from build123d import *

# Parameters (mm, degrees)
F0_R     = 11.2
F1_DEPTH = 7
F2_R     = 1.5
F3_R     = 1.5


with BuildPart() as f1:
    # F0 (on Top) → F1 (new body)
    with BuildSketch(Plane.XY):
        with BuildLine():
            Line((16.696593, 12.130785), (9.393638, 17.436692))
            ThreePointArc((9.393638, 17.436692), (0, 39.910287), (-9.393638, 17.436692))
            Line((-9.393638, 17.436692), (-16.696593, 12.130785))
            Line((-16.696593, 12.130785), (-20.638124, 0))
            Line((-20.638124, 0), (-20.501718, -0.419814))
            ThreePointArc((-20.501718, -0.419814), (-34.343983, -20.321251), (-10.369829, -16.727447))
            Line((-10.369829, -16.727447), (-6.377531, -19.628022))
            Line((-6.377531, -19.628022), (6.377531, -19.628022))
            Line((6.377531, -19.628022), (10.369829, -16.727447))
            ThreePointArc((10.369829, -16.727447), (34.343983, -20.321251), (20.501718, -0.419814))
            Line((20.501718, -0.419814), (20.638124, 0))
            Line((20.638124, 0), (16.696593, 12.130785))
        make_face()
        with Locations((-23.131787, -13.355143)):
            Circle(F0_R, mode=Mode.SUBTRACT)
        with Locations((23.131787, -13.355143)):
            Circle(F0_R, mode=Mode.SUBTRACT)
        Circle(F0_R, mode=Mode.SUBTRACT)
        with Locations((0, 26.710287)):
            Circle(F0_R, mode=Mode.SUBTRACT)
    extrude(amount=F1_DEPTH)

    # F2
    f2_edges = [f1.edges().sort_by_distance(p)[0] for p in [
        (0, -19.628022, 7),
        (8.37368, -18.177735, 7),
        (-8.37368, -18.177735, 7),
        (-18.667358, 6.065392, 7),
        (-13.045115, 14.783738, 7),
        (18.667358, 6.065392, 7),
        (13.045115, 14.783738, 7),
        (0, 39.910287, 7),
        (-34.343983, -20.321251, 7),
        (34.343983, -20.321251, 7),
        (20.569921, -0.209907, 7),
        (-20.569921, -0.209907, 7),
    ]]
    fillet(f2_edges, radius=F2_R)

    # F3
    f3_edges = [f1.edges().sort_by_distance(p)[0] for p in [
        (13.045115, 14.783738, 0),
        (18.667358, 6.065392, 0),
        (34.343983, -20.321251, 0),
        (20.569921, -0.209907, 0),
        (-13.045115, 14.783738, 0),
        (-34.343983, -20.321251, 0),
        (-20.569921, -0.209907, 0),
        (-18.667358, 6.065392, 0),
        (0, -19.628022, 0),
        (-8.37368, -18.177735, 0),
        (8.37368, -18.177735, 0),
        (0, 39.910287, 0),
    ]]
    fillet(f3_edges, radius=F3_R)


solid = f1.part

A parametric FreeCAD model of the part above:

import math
import FreeCAD as App
import Part
import Sketcher
Q = App.Units.Quantity


def edges_at(feature, points):
    """Names of the edges that pass closest to the given points."""
    edges = feature.Shape.Edges
    near = lambda p: min(range(len(edges)), key=lambda i: edges[i].distToShape(Part.Vertex(*p))[0])
    return sorted({f"Edge{near(p) + 1}" for p in points})

doc = App.newDocument("Part")
body = doc.addObject("PartDesign::Body", "Body")

# Sketch on XY plane
sketch1 = body.newObject("Sketcher::SketchObject", "Sketch")
sketch1.AttachmentSupport = (doc.getObject("XY_Plane"), [""])
sketch1.MapMode = "FlatFace"
sketch1.addGeometry([
    Part.LineSegment(App.Vector(16.7, 12.13, 0), App.Vector(9.39, 17.44, 0)),  # 0
    Part.ArcOfCircle(Part.Circle(App.Vector(0, 26.71, 0), App.Vector(0, 0, 1), 13.2), math.radians(-45), math.radians(225)),  # 1
    Part.LineSegment(App.Vector(-9.39, 17.44, 0), App.Vector(-16.7, 12.13, 0)),  # 2
    Part.LineSegment(App.Vector(-16.7, 12.13, 0), App.Vector(-20.64, 0, 0)),  # 3
    Part.LineSegment(App.Vector(-20.64, 0, 0), App.Vector(-20.5, -0.42, 0)),  # 4
    Part.ArcOfCircle(Part.Circle(App.Vector(-23.13, -13.36, 0), App.Vector(0, 0, 1), 13.2), math.radians(79), math.radians(345)),  # 5
    Part.LineSegment(App.Vector(-10.37, -16.73, 0), App.Vector(-6.38, -19.63, 0)),  # 6
    Part.LineSegment(App.Vector(-6.38, -19.63, 0), App.Vector(6.38, -19.63, 0)),  # 7
    Part.LineSegment(App.Vector(6.38, -19.63, 0), App.Vector(10.37, -16.73, 0)),  # 8
    Part.ArcOfCircle(Part.Circle(App.Vector(23.13, -13.36, 0), App.Vector(0, 0, 1), 13.2), math.radians(-165), math.radians(101)),  # 9
    Part.LineSegment(App.Vector(20.5, -0.42, 0), App.Vector(20.64, 0, 0)),  # 10
    Part.LineSegment(App.Vector(20.64, 0, 0), App.Vector(16.7, 12.13, 0)),  # 11
    Part.Circle(App.Vector(-23.13, -13.36, 0), App.Vector(0, 0, 1), 11.2),  # 12
    Part.Circle(App.Vector(23.13, -13.36, 0), App.Vector(0, 0, 1), 11.2),  # 13
    Part.Circle(App.Vector(0, 0, 0), App.Vector(0, 0, 1), 11.2),  # 14
    Part.Circle(App.Vector(0, 26.71, 0), App.Vector(0, 0, 1), 11.2),  # 15
], False)
sketch1.addConstraint([
    Sketcher.Constraint("Coincident", 0, 2, 1, 1),
    Sketcher.Constraint("Coincident", 1, 2, 2, 1),
    Sketcher.Constraint("Coincident", 2, 2, 3, 1),
    Sketcher.Constraint("Coincident", 3, 2, 4, 1),
    Sketcher.Constraint("Coincident", 4, 2, 5, 1),
    Sketcher.Constraint("Coincident", 5, 2, 6, 1),
    Sketcher.Constraint("Coincident", 6, 2, 7, 1),
    Sketcher.Constraint("Coincident", 7, 2, 8, 1),
    Sketcher.Constraint("Coincident", 8, 2, 9, 1),
    Sketcher.Constraint("Coincident", 9, 2, 10, 1),
    Sketcher.Constraint("Coincident", 10, 2, 11, 1),
    Sketcher.Constraint("Coincident", 11, 2, 0, 1),
    Sketcher.Constraint("Horizontal", 7),
    Sketcher.Constraint("Coincident", 14, 3, -1, 1),
    Sketcher.Constraint("Coincident", 12, 3, 5, 3),
    Sketcher.Constraint("Coincident", 13, 3, 9, 3),
    Sketcher.Constraint("Coincident", 15, 3, 1, 3),
    Sketcher.Constraint("Equal", 1, 5),
    Sketcher.Constraint("Equal", 5, 9),
    Sketcher.Constraint("Equal", 12, 13),
    Sketcher.Constraint("Equal", 13, 14),
    Sketcher.Constraint("Equal", 14, 15),
    Sketcher.Constraint("Symmetric", 3, 2, 10, 2, -1, 1),
    Sketcher.Constraint("Symmetric", 5, 3, 9, 3, -2),
    Sketcher.Constraint("Symmetric", 0, 2, 1, 2, -2),
    Sketcher.Constraint("Symmetric", 2, 2, 11, 2, -2),
    Sketcher.Constraint("PointOnObject", 3, 2, -1),
    Sketcher.Constraint("Parallel", 0, 6),
    Sketcher.Constraint("Parallel", 2, 8),
    Sketcher.Constraint("Parallel", 3, 10),
    Sketcher.Constraint("Parallel", 4, 11),
    Sketcher.Constraint("Horizontal", 5, 2, 8, 2),
    Sketcher.Constraint("Diameter", 12, 22.4),
    Sketcher.Constraint("Radius", 1, 13.2),
    Sketcher.Constraint("Angle", 0, Q("144.000002 deg")),
    Sketcher.Constraint("Angle", 3, Q("-108 deg")),
    Sketcher.Constraint("DistanceY", 4, 2, 2, 2, 12.550599),
    Sketcher.Constraint("DistanceX", 5, 2, 6, 2, 3.992298),
    Sketcher.Constraint("Distance", 0, 9.026949),
    Sketcher.Constraint("Distance", 4, 0.441419),
    Sketcher.Constraint("DistanceX", 7, 1, 7, 2, 12.755062),
    Sketcher.Constraint("DistanceX", 1, 2, -1, 1, 9.393638),
    Sketcher.Constraint("DistanceY", 5, 3, 1, 3, 40.06543),
])
pad1 = body.newObject("PartDesign::Pad", "Pad")
pad1.Profile = sketch1
pad1.Length = 7
doc.recompute()

fillet = body.newObject("PartDesign::Fillet", "Fillet")
fillet.Base = (pad1, edges_at(pad1, [
    (0, -19.628, 7),
    (8.374, -18.178, 7),
    (-8.374, -18.178, 7),
    (-18.667, 6.065, 7),
    (-13.045, 14.784, 7),
    (18.667, 6.065, 7),
    (13.045, 14.784, 7),
    (0, 39.91, 7),
    (-34.344, -20.321, 7),
    (34.344, -20.321, 7),
    (20.57, -0.21, 7),
    (-20.57, -0.21, 7),
]))
fillet.Radius = 1.5
doc.recompute()

fillet2 = body.newObject("PartDesign::Fillet", "Fillet001")
fillet2.Base = (fillet, edges_at(fillet, [
    (13.045, 14.784, 0),
    (18.667, 6.065, 0),
    (34.344, -20.321, 0),
    (20.57, -0.21, 0),
    (-13.045, 14.784, 0),
    (-34.344, -20.321, 0),
    (-20.57, -0.21, 0),
    (-18.667, 6.065, 0),
    (0, -19.628, 0),
    (-8.374, -18.178, 0),
    (8.374, -18.178, 0),
    (0, 39.91, 0),
]))
fillet2.Radius = 1.5

doc.recompute()
